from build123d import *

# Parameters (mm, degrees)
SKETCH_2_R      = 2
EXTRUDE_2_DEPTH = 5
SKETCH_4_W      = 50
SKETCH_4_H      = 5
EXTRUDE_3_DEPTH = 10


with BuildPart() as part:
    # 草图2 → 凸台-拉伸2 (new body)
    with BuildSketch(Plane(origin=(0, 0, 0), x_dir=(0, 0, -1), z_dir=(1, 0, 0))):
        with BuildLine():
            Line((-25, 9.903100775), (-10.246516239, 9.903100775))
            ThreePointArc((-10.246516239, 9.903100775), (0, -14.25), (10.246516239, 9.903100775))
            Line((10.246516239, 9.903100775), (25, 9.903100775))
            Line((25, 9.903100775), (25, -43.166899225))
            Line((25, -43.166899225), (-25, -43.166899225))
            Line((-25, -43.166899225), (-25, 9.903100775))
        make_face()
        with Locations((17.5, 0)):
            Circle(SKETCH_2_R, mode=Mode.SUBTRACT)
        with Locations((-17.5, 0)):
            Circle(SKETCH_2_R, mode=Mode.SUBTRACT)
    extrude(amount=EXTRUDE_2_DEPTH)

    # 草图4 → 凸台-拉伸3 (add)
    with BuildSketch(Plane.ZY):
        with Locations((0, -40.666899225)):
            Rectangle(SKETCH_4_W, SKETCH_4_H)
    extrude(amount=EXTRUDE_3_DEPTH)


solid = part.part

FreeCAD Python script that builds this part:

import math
import FreeCAD as App
import Part
import Sketcher
from FreeCAD import Vector
Q = App.Units.Quantity


def add_polygon(sketch, points):
    """Adds a closed chain of lines whose ends are joined by coincident constraints."""
    first, n = sketch.GeometryCount, len(points)
    for a, b in zip(points, points[1:] + points[:1]):
        sketch.addGeometry(Part.LineSegment(App.Vector(*a, 0), App.Vector(*b, 0)), False)
    for i in range(n):
        sketch.addConstraint(Sketcher.Constraint("Coincident", first + i, 2, first + (i + 1) % n, 1))

doc = App.newDocument("Part")
body = doc.addObject("PartDesign::Body", "Body")

sketch1 = doc.addObject("Sketcher::SketchObject", "Sketch")
body.addObject(sketch1)
sketch1.AttachmentSupport = (doc.YZ_Plane, [""])
sketch1.MapMode = "FlatFace"
sketch1.addGeometry(Part.LineSegment(Vector(9.903101, 10.246516, 0), Vector(9.903101, 25, 0)), False)
sketch1.addGeometry(Part.LineSegment(Vector(9.903101, 25, 0), Vector(-43.166899, 25, 0)), False)
sketch1.addGeometry(Part.LineSegment(Vector(-43.166899, 25, 0), Vector(-43.166899, -25, 0)), False)
sketch1.addGeometry(Part.LineSegment(Vector(-43.166899, -25, 0), Vector(9.903101, -25, 0)), False)
sketch1.addGeometry(Part.LineSegment(Vector(9.903101, -25, 0), Vector(9.903101, -10.246516, 0)), False)
sketch1.addGeometry(Part.ArcOfCircle(Part.Circle(Vector(0, 0, 0), Vector(0, 0, 1), 14.25), math.radians(45.976413), math.radians(314.023587)), False)
sketch1.addGeometry(Part.Circle(Vector(0, -17.5, 0), Vector(0, 0, 1), 2), False)
sketch1.addGeometry(Part.Circle(Vector(0, 17.5, 0), Vector(0, 0, 1), 2), False)
sketch1.addConstraint(Sketcher.Constraint("Coincident", 0, 2, 1, 1))
sketch1.addConstraint(Sketcher.Constraint("Coincident", 1, 2, 2, 1))
sketch1.addConstraint(Sketcher.Constraint("Coincident", 2, 2, 3, 1))
sketch1.addConstraint(Sketcher.Constraint("Coincident", 3, 2, 4, 1))
sketch1.addConstraint(Sketcher.Constraint("Coincident", 4, 2, 5, 2))
sketch1.addConstraint(Sketcher.Constraint("Coincident", 5, 1, 0, 1))
sketch1.addConstraint(Sketcher.Constraint("Vertical", 0))
sketch1.addConstraint(Sketcher.Constraint("Horizontal", 1))
sketch1.addConstraint(Sketcher.Constraint("Vertical", 2))
sketch1.addConstraint(Sketcher.Constraint("Horizontal", 3))
sketch1.addConstraint(Sketcher.Constraint("Vertical", 4))
sketch1.addConstraint(Sketcher.Constraint("Coincident", 5, 3, -1, 1))
sketch1.addConstraint(Sketcher.Constraint("Equal", 6, 7))
sketch1.addConstraint(Sketcher.Constraint("Symmetric", 6, 3, 7, 3, -1, 1))
sketch1.addConstraint(Sketcher.Constraint("Symmetric", 0, 2, 3, 2, -1))
sketch1.addConstraint(Sketcher.Constraint("PointOnObject", 6, 3, -2))
sketch1.addConstraint(Sketcher.Constraint("Diameter", 6, Q("4 mm")))
sketch1.addConstraint(Sketcher.Constraint("DistanceY", 2, 2, 2, 1, Q("50 mm")))
sketch1.addConstraint(Sketcher.Constraint("Radius", 5, Q("14.25 mm")))
sketch1.addConstraint(Sketcher.Constraint("DistanceY", 6, 3, 7, 3, Q("35 mm")))
sketch1.addConstraint(Sketcher.Constraint("DistanceX", 1, 2, 1, 1, Q("53.07 mm")))
sketch1.addConstraint(Sketcher.Constraint("DistanceX", -1, 1, 0, 2, Q("9.903101 mm")))
pad1 = doc.addObject("PartDesign::Pad", "Pad")
body.addObject(pad1)
pad1.Profile = sketch1
pad1.Length = 5

sketch2 = doc.addObject("Sketcher::SketchObject", "Sketch001")
body.addObject(sketch2)
sketch2.AttachmentSupport = (doc.YZ_Plane, [""])
sketch2.MapMode = "FlatFace"
add_polygon(sketch2, [(-38.166899, -25), (-43.166899, -25), (-43.166899, 25), (-38.166899, 25)])
sketch2.addConstraint(Sketcher.Constraint("Horizontal", 0))
sketch2.addConstraint(Sketcher.Constraint("Vertical", 1))
sketch2.addConstraint(Sketcher.Constraint("Horizontal", 2))
sketch2.addConstraint(Sketcher.Constraint("Vertical", 3))
sketch2.addConstraint(Sketcher.Constraint("DistanceX", 0, 2, 0, 1, Q("5 mm")))
sketch2.addConstraint(Sketcher.Constraint("DistanceY", 1, 1, 1, 2, Q("50 mm")))
sketch2.addConstraint(Sketcher.Constraint("DistanceY", 0, 2, -1, 1, Q("25 mm")))
sketch2.addConstraint(Sketcher.Constraint("DistanceX", 0, 2, -1, 1, Q("43.166899 mm")))
pad2 = doc.addObject("PartDesign::Pad", "Pad001")
body.addObject(pad2)
pad2.Profile = sketch2
pad2.Length = 10
pad2.Reversed = True

doc.recompute()
